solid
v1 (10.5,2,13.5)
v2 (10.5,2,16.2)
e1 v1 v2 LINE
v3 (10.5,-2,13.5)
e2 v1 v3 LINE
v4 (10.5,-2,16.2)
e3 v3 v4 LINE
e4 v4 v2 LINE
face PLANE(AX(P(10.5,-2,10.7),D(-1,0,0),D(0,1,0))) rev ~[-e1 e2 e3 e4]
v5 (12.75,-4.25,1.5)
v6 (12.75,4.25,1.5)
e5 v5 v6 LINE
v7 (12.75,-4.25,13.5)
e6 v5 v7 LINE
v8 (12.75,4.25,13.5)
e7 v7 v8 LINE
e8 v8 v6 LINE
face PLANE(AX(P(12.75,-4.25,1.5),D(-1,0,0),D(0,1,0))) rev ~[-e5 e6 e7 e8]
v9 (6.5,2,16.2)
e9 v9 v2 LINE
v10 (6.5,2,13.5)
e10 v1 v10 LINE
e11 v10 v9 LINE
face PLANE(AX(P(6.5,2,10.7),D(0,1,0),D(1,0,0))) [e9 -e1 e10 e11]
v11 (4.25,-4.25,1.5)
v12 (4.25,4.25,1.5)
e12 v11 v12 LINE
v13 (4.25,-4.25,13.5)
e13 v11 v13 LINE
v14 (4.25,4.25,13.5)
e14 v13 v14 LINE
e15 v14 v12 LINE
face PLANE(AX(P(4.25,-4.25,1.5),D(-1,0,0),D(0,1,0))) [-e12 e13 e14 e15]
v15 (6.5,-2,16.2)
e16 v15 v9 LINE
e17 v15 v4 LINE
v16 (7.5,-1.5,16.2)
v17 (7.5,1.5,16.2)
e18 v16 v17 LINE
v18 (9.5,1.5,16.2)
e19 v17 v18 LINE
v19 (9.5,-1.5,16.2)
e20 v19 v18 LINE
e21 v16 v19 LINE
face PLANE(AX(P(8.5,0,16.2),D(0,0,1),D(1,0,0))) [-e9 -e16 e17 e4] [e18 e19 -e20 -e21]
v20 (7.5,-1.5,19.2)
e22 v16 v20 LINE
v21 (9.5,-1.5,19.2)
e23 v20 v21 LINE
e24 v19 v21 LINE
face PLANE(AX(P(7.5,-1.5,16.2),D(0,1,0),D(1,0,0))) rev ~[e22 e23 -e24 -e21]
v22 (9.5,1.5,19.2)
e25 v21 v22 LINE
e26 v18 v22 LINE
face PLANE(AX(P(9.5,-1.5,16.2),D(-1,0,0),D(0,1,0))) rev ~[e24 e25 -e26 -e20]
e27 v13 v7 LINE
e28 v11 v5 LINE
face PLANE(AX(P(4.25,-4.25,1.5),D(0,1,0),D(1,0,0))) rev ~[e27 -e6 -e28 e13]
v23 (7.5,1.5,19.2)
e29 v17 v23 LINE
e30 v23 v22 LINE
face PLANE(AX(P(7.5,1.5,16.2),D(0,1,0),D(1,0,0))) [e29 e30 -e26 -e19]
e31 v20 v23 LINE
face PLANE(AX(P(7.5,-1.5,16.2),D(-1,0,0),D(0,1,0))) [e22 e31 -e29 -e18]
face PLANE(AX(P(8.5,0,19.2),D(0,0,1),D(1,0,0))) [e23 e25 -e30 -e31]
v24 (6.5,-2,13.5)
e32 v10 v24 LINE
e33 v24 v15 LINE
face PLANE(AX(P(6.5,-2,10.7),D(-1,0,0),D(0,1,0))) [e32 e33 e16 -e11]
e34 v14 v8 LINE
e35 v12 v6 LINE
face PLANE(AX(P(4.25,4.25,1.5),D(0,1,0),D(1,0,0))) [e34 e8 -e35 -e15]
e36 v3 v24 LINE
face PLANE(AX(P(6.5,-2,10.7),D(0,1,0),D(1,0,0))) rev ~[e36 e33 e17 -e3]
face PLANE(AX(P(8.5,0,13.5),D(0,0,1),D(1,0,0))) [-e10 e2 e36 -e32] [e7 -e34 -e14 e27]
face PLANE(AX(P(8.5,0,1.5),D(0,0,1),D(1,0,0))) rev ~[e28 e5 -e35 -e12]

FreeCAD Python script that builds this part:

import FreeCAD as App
import Part
import Sketcher
from FreeCAD import Vector

doc = App.newDocument("Part")
body = doc.addObject("PartDesign::Body", "Body")

# Sketch on XY plane
sketch1 = body.newObject("Sketcher::SketchObject", "Sketch")
sketch1.AttachmentSupport = (doc.getObject("XY_Plane"), [""])
sketch1.MapMode = "FlatFace"
sketch1.AttachmentOffset = App.Placement(Vector(0, 0, 5.7), App.Rotation())
sketch1.addGeometry([
    Part.LineSegment(Vector(-2, 2, 0), Vector(-2, -2, 0)),
    Part.LineSegment(Vector(-2, -2, 0), Vector(2, -2, 0)),
    Part.LineSegment(Vector(2, -2, 0), Vector(2, 2, 0)),
    Part.LineSegment(Vector(2, 2, 0), Vector(-2, 2, 0)),
], False)
sketch1.addConstraint([
    Sketcher.Constraint("Coincident", 0, 2, 1, 1),
    Sketcher.Constraint("Coincident", 1, 2, 2, 1),
    Sketcher.Constraint("Coincident", 2, 2, 3, 1),
    Sketcher.Constraint("Coincident", 3, 2, 0, 1),
    Sketcher.Constraint("Vertical", 0),
    Sketcher.Constraint("Horizontal", 1),
    Sketcher.Constraint("Vertical", 2),
    Sketcher.Constraint("Horizontal", 3),
    Sketcher.Constraint("Symmetric", 0, 2, 2, 2, -1, 1),
    Sketcher.Constraint("Equal", 3, 0),
    Sketcher.Constraint("DistanceX", 1, 1, 1, 2, 4.0),
])
pad1 = body.newObject("PartDesign::Pad", "Pad")
pad1.Profile = sketch1
pad1.Length = 5.5
body2 = doc.addObject("PartDesign::Body", "Body001")

# Sketch on XY plane
sketch2 = body2.newObject("Sketcher::SketchObject", "Sketch001")
sketch2.AttachmentSupport = (doc.getObject("XY_Plane001"), [""])
sketch2.MapMode = "FlatFace"
sketch2.AttachmentOffset = App.Placement(Vector(0, 0, -3.5), App.Rotation())
sketch2.addGeometry([
    Part.LineSegment(Vector(-4, 4, 0), Vector(-4, -4, 0)),
    Part.LineSegment(Vector(-4, -4, 0), Vector(4, -4, 0)),
    Part.LineSegment(Vector(4, -4, 0), Vector(4, 4, 0)),
    Part.LineSegment(Vector(4, 4, 0), Vector(-4, 4, 0)),
], False)
sketch2.addConstraint([
    Sketcher.Constraint("Coincident", 0, 2, 1, 1),
    Sketcher.Constraint("Coincident", 1, 2, 2, 1),
    Sketcher.Constraint("Coincident", 2, 2, 3, 1),
    Sketcher.Constraint("Coincident", 3, 2, 0, 1),
    Sketcher.Constraint("Vertical", 0),
    Sketcher.Constraint("Horizontal", 1),
    Sketcher.Constraint("Vertical", 2),
    Sketcher.Constraint("Horizontal", 3),
    Sketcher.Constraint("Symmetric", 0, 2, 2, 2, -1, 1),
    Sketcher.Constraint("Equal", 3, 0),
    Sketcher.Constraint("DistanceX", 1, 1, 1, 2, 8.5),
])
pad2 = body2.newObject("PartDesign::Pad", "Pad001")
pad2.Profile = sketch2
pad2.Length = 3.5
body3 = doc.addObject("PartDesign::Body", "Body002")

# Sketch on XY plane
sketch3 = body3.newObject("Sketcher::SketchObject", "Sketch002")
sketch3.AttachmentSupport = (doc.getObject("XY_Plane002"), [""])
sketch3.MapMode = "FlatFace"
sketch3.AttachmentOffset = App.Placement(Vector(0, 0, 11.2), App.Rotation())
sketch3.addGeometry([
    Part.LineSegment(Vector(-1, 1.5, 0), Vector(-1, -1.5, 0)),
    Part.LineSegment(Vector(-1, -1.5, 0), Vector(1, -1.5, 0)),
    Part.LineSegment(Vector(1, -1.5, 0), Vector(1, 1.5, 0)),
    Part.LineSegment(Vector(1, 1.5, 0), Vector(-1, 1.5, 0)),
], False)
sketch3.addConstraint([
    Sketcher.Constraint("Coincident", 0, 2, 1, 1),
    Sketcher.Constraint("Coincident", 1, 2, 2, 1),
    Sketcher.Constraint("Coincident", 2, 2, 3, 1),
    Sketcher.Constraint("Coincident", 3, 2, 0, 1),
    Sketcher.Constraint("Vertical", 0),
    Sketcher.Constraint("Horizontal", 1),
    Sketcher.Constraint("Vertical", 2),
    Sketcher.Constraint("Horizontal", 3),
    Sketcher.Constraint("Symmetric", 0, 2, 2, 2, -1, 1),
    Sketcher.Constraint("DistanceX", 1, 1, 1, 2, 2.0),
    Sketcher.Constraint("DistanceY", 0, 2, 0, 1, 3.0),
])
pad3 = body3.newObject("PartDesign::Pad", "Pad002")
pad3.Profile = sketch3
pad3.Length = 3
body4 = doc.addObject("PartDesign::Body", "Body003")

# Sketch on XY plane
sketch4 = body4.newObject("Sketcher::SketchObject", "Sketch003")
sketch4.AttachmentSupport = (doc.getObject("XY_Plane003"), [""])
sketch4.MapMode = "FlatFace"
sketch4.addGeometry([
    Part.LineSegment(Vector(-4, 4, 0), Vector(-4, -4, 0)),
    Part.LineSegment(Vector(-4, -4, 0), Vector(4, -4, 0)),
    Part.LineSegment(Vector(4, -4, 0), Vector(4, 4, 0)),
    Part.LineSegment(Vector(4, 4, 0), Vector(-4, 4, 0)),
], False)
sketch4.addConstraint([
    Sketcher.Constraint("Coincident", 0, 2, 1, 1),
    Sketcher.Constraint("Coincident", 1, 2, 2, 1),
    Sketcher.Constraint("Coincident", 2, 2, 3, 1),
    Sketcher.Constraint("Coincident", 3, 2, 0, 1),
    Sketcher.Constraint("Vertical", 0),
    Sketcher.Constraint("Horizontal", 1),
    Sketcher.Constraint("Vertical", 2),
    Sketcher.Constraint("Horizontal", 3),
    Sketcher.Constraint("Symmetric", 0, 2, 2, 2, -1, 1),
    Sketcher.Constraint("Equal", 3, 0),
    Sketcher.Constraint("DistanceX", 1, 1, 1, 2, 8.5),
])
pad4 = body4.newObject("PartDesign::Pad", "Pad003")
pad4.Profile = sketch4
pad4.Length = 8.5
doc.recompute()

boolean = body4.newObject("PartDesign::Boolean", "Boolean")
boolean.Type = "Fuse"
boolean.addObjects([body])
doc.recompute()

boolean2 = body4.newObject("PartDesign::Boolean", "Boolean001")
boolean2.Type = "Fuse"
boolean2.addObjects([body2])
doc.recompute()

boolean3 = body4.newObject("PartDesign::Boolean", "Boolean002")
boolean3.Type = "Fuse"
boolean3.addObjects([body3])
body5 = doc.addObject("PartDesign::Body", "Body004")
doc.recompute()

body4.Placement = App.Placement(Vector(8.5, 0, 5), App.Rotation(Vector(0, 0, 1), 0))
boolean4 = body5.newObject("PartDesign::Boolean", "Boolean003")
boolean4.Type = "Fuse"
boolean4.addObjects([body4])

doc.recompute()
